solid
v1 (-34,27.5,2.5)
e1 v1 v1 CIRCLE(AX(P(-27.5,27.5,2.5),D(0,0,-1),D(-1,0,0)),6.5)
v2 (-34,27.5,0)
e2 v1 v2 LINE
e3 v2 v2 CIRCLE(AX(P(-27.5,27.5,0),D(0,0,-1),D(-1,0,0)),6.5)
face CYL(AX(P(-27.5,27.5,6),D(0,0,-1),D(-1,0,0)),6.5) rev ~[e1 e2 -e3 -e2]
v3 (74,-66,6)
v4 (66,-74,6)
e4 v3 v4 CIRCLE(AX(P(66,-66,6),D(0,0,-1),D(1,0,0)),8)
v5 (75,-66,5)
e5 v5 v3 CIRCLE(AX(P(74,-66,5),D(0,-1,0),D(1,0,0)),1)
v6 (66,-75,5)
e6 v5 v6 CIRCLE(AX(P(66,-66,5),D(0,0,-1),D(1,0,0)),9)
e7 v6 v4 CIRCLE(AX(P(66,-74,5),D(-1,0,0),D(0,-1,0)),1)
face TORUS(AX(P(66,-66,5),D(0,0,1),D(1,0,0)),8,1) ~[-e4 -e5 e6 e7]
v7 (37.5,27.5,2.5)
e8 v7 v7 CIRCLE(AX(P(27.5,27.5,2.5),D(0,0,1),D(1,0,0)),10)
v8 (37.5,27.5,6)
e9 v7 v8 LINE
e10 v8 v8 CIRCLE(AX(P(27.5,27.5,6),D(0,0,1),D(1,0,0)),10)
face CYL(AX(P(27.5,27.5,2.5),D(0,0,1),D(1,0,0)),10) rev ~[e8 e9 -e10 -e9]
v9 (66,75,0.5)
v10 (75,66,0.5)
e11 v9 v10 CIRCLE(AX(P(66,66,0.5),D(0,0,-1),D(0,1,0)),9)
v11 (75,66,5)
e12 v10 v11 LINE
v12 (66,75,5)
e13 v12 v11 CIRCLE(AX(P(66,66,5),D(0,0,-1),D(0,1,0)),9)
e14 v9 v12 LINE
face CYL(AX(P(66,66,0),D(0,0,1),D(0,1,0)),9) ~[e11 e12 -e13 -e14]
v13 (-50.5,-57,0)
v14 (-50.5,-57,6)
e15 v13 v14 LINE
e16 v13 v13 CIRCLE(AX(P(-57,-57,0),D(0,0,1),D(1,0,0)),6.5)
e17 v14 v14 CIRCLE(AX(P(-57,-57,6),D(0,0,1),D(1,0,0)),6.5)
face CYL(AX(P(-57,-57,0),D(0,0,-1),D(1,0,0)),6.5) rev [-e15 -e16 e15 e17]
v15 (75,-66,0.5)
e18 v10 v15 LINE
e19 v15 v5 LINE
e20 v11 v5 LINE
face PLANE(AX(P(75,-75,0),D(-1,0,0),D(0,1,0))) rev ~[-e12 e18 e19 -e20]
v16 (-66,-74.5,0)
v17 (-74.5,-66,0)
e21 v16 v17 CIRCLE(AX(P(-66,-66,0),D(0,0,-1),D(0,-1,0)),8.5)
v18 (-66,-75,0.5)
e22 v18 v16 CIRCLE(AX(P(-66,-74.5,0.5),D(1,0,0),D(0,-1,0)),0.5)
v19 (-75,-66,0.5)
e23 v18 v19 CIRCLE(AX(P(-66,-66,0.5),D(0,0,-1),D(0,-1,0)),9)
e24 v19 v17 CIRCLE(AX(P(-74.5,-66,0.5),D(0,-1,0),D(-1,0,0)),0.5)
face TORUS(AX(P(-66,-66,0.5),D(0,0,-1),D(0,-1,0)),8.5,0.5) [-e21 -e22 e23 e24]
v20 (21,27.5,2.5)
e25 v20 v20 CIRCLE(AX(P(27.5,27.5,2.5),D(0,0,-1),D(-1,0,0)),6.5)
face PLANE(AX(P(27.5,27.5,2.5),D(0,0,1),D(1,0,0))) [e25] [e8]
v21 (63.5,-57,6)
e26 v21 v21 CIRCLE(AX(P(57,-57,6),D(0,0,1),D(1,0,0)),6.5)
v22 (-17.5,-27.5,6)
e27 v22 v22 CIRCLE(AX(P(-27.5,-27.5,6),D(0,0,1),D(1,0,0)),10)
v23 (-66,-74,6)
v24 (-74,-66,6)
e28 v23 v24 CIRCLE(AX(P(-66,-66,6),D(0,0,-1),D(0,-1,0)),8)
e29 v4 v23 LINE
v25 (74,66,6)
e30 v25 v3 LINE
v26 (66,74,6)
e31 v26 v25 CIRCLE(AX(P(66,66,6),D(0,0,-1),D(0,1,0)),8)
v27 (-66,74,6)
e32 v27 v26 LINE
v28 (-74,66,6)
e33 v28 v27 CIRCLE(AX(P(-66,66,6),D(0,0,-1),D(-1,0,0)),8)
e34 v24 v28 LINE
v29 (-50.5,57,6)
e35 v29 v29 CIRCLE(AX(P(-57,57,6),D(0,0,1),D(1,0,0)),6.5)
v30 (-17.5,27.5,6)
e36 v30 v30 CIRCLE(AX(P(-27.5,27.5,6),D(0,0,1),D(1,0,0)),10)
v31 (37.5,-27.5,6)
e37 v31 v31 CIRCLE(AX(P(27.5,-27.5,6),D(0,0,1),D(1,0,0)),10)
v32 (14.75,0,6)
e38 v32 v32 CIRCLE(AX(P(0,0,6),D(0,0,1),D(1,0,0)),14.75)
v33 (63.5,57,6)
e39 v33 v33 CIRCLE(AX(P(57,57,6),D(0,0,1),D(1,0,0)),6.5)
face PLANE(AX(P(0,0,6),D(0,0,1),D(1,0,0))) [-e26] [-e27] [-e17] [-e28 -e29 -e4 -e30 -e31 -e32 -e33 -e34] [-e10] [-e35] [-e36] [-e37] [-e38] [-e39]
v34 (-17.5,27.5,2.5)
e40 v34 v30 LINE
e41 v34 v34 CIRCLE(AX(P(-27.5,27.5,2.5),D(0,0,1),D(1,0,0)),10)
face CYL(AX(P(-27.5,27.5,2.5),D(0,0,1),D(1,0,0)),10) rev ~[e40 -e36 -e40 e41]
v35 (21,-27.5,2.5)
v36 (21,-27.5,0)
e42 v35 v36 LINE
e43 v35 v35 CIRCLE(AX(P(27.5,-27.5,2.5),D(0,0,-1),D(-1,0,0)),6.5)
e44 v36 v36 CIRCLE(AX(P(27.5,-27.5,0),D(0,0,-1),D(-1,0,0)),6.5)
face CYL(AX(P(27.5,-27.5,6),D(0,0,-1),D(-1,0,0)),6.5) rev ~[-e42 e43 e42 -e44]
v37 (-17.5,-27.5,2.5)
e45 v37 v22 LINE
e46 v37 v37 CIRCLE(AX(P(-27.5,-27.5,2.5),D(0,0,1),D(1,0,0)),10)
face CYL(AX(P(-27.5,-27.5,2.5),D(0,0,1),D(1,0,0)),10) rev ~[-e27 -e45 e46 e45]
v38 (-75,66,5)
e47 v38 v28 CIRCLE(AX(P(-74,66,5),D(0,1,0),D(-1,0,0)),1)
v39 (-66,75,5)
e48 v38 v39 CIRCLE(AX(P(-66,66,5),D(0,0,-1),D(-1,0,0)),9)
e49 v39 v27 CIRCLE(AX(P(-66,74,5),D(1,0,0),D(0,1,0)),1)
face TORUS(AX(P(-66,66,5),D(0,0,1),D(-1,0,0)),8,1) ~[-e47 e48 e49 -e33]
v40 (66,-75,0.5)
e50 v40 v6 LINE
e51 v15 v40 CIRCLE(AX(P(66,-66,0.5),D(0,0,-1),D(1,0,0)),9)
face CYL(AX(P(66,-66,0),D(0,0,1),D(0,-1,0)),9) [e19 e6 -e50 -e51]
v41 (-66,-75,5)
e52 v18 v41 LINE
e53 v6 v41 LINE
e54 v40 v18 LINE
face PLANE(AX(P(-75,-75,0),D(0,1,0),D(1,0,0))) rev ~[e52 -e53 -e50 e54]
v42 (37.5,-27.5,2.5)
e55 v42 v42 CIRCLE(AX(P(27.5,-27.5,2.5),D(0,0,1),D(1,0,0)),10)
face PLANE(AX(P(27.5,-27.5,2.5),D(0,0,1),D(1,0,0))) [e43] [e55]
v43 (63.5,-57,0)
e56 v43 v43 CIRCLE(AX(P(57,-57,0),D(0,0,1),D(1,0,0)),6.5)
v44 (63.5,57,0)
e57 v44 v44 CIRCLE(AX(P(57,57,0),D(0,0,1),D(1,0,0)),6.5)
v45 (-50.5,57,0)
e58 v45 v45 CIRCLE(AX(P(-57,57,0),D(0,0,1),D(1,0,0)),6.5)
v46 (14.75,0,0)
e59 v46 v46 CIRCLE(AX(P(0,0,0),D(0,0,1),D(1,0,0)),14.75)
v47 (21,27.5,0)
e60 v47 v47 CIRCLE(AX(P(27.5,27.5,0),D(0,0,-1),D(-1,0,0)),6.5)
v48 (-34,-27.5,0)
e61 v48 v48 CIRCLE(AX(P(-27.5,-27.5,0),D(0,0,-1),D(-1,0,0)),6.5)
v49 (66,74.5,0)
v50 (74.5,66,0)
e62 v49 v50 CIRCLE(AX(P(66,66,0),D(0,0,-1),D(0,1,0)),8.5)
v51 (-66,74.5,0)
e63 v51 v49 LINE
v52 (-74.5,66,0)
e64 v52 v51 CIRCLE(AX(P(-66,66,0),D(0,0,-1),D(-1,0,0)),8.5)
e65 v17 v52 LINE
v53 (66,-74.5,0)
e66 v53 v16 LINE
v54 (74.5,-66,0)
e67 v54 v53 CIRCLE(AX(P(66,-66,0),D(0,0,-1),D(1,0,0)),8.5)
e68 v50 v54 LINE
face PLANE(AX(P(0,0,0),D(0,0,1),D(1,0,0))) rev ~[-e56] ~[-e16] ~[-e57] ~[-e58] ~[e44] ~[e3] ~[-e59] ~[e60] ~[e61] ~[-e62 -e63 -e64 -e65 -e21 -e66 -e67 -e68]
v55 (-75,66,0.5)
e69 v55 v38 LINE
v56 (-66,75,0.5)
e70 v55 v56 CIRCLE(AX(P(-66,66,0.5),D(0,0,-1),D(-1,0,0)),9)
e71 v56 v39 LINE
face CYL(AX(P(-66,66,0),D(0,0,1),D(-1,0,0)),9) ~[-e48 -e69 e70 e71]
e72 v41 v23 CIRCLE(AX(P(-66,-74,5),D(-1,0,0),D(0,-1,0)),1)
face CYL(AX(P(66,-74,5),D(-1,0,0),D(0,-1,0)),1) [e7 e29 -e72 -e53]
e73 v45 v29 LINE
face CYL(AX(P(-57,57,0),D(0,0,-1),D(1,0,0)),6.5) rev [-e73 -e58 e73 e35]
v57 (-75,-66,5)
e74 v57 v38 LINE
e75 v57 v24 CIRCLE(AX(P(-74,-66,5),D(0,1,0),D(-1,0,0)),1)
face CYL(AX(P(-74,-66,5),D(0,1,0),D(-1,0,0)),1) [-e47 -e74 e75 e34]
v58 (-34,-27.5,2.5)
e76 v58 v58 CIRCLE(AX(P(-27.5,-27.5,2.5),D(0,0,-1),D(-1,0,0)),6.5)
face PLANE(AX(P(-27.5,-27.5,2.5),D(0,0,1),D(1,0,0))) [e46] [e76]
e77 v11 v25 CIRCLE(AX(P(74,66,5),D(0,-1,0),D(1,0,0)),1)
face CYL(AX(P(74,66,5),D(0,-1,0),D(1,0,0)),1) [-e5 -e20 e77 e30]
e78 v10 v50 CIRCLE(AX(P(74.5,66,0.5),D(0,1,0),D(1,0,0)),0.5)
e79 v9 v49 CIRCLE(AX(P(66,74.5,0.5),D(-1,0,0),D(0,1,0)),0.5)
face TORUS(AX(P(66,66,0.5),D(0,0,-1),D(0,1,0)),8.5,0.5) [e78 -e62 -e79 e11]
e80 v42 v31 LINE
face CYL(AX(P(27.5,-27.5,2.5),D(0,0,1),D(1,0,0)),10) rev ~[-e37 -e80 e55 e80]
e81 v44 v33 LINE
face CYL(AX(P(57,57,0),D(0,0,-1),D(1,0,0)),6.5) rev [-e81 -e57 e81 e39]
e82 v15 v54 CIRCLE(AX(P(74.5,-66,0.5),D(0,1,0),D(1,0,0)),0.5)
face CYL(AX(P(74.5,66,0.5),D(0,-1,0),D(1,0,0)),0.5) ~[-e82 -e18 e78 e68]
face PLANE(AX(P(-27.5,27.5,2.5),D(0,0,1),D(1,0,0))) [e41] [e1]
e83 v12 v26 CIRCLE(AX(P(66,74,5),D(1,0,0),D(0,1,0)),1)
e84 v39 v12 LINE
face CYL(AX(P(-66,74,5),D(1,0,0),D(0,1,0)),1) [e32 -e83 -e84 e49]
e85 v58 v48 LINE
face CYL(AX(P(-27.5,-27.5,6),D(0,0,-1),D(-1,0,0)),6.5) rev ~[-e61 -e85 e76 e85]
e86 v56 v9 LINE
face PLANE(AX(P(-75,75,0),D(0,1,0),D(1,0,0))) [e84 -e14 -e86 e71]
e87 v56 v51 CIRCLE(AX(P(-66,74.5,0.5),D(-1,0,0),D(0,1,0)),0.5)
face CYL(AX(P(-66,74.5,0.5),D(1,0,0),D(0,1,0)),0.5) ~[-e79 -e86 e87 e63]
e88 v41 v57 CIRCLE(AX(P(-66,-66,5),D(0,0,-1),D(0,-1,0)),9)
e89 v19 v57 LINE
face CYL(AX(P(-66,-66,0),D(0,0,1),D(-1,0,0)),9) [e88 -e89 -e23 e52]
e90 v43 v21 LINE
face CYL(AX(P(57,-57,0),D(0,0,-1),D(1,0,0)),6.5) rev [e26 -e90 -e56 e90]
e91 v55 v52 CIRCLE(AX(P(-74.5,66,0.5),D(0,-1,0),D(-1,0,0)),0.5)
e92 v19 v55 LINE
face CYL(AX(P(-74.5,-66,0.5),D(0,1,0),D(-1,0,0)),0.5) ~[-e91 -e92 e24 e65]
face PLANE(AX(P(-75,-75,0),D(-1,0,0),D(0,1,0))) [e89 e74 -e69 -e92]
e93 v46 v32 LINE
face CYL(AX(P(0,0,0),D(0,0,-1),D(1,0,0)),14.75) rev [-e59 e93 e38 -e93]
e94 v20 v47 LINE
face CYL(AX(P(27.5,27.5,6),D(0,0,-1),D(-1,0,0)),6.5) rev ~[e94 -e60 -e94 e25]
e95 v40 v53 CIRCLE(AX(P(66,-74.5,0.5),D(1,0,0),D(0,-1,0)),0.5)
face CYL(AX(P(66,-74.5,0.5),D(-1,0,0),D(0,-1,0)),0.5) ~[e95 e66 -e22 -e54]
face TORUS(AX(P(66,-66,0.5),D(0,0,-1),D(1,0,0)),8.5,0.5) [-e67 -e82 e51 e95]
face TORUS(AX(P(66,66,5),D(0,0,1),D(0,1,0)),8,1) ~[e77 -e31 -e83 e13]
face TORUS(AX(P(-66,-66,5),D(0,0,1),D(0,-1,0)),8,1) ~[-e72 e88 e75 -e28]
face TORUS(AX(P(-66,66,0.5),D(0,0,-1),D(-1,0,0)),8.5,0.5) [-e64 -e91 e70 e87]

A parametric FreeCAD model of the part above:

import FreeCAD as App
import Part
import Sketcher
from FreeCAD import Vector


def edges_at(feature, points):
    """Names of the edges that pass closest to the given points."""
    edges = feature.Shape.Edges
    near = lambda p: min(range(len(edges)), key=lambda i: edges[i].distToShape(Part.Vertex(*p))[0])
    return sorted({f"Edge{near(p) + 1}" for p in points})


def add_polygon(sketch, points):
    """Adds a closed chain of lines whose ends are joined by coincident constraints."""
    first, n = sketch.GeometryCount, len(points)
    for a, b in zip(points, points[1:] + points[:1]):
        sketch.addGeometry(Part.LineSegment(App.Vector(*a, 0), App.Vector(*b, 0)), False)
    for i in range(n):
        sketch.addConstraint(Sketcher.Constraint("Coincident", first + i, 2, first + (i + 1) % n, 1))

doc = App.newDocument("Part")
params = doc.addObject("Spreadsheet::Sheet", "Params")
for row, (alias, value) in enumerate([
    ("sketch1_diameter", "13 mm"),
    ("sketch1_diameter2", "29.5 mm"),
    ("sketch1_width", "150 mm"),
    ("pad1_length", "6 mm"),
    ("fillet_radius", "9 mm"),
    ("sketch2_diameter", "13 mm"),
    ("hole_diameter", "13 mm"),
    ("hole_cbore_diameter", "20 mm"),
    ("hole_cbore_depth", "3.5 mm"),
    ("fillet2_radius", "1 mm"),
    ("fillet3_radius", "0.5 mm"),
], start=1):
    params.set(f"A{row}", alias)
    params.set(f"B{row}", "=" + value)
    params.setAlias(f"B{row}", alias)

body = doc.addObject("PartDesign::Body", "Body")

# Sketch on XY plane
sketch1 = body.newObject("Sketcher::SketchObject", "Sketch")
sketch1.AttachmentSupport = (doc.getObject("XY_Plane"), [""])
sketch1.MapMode = "FlatFace"
add_polygon(sketch1, [(-75, 75), (-75, -75), (75, -75), (75, 75)])  # lines 0-3
sketch1.addGeometry(Part.Circle(Vector(-57, -57, 0), Vector(0, 0, 1), 6), False)  # 4
sketch1.addGeometry(Part.Circle(Vector(57, -57, 0), Vector(0, 0, 1), 6), False)  # 5
sketch1.addGeometry(Part.Circle(Vector(-57, 57, 0), Vector(0, 0, 1), 6), False)  # 6
sketch1.addGeometry(Part.Circle(Vector(0, 0, 0), Vector(0, 0, 1), 15), False)  # 7
sketch1.addGeometry(Part.Circle(Vector(57, 57, 0), Vector(0, 0, 1), 6), False)  # 8
sketch1.addConstraint(Sketcher.Constraint("Vertical", 0))
sketch1.addConstraint(Sketcher.Constraint("Horizontal", 1))
sketch1.addConstraint(Sketcher.Constraint("Vertical", 2))
sketch1.addConstraint(Sketcher.Constraint("Horizontal", 3))
sketch1.addConstraint(Sketcher.Constraint("Coincident", 7, 3, -1, 1))
sketch1.addConstraint(Sketcher.Constraint("Equal", 4, 5))
sketch1.addConstraint(Sketcher.Constraint("Equal", 5, 6))
sketch1.addConstraint(Sketcher.Constraint("Equal", 6, 8))
sketch1.addConstraint(Sketcher.Constraint("Symmetric", 5, 3, 6, 3, -1, 1))
sketch1.addConstraint(Sketcher.Constraint("Symmetric", 4, 3, 8, 3, -1, 1))
sketch1.addConstraint(Sketcher.Constraint("Symmetric", 0, 2, 2, 2, -1, 1))
sketch1.addConstraint(Sketcher.Constraint("Symmetric", 4, 3, 5, 3, -2))
sketch1.addConstraint(Sketcher.Constraint("Equal", 3, 0))
sketch1.addConstraint(Sketcher.Constraint("Diameter", 4, 13.0))
sketch1.addConstraint(Sketcher.Constraint("Diameter", 7, 29.5))
sketch1.addConstraint(Sketcher.Constraint("DistanceX", 1, 1, 1, 2, 150.0))
sketch1.addConstraint(Sketcher.Constraint("DistanceX", 4, 3, -1, 1, 57.0))
sketch1.addConstraint(Sketcher.Constraint("DistanceY", 4, 3, -1, 1, 57.0))
sketch1.setExpression("Constraints[17]", "Params.sketch1_diameter")
sketch1.setExpression("Constraints[18]", "Params.sketch1_diameter2")
sketch1.setExpression("Constraints[19]", "Params.sketch1_width")
pad1 = body.newObject("PartDesign::Pad", "Pad")
pad1.Profile = sketch1
pad1.setExpression("Length", "Params.pad1_length")
doc.recompute()

fillet = body.newObject("PartDesign::Fillet", "Fillet")
fillet.Base = (pad1, edges_at(pad1, [
    (-75, -75, 3),
    (-75, 75, 3),
    (75, -75, 3),
    (75, 75, 3),
]))
fillet.setExpression("Radius", "Params.fillet_radius")

# Sketch on XY plane
sketch2 = body.newObject("Sketcher::SketchObject", "Sketch001")
sketch2.AttachmentSupport = (doc.getObject("XY_Plane"), [""])
sketch2.MapMode = "FlatFace"
sketch2.AttachmentOffset = App.Placement(Vector(0, 0, 6), App.Rotation())
sketch2.addGeometry(Part.Circle(Vector(-28, 28, 0), Vector(0, 0, 1), 6), False)
sketch2.addGeometry(Part.Circle(Vector(28, 28, 0), Vector(0, 0, 1), 6), False)
sketch2.addGeometry(Part.Circle(Vector(28, -28, 0), Vector(0, 0, 1), 6), False)
sketch2.addGeometry(Part.Circle(Vector(-28, -28, 0), Vector(0, 0, 1), 6), False)
sketch2.addConstraint(Sketcher.Constraint("Equal", 0, 1))
sketch2.addConstraint(Sketcher.Constraint("Equal", 1, 2))
sketch2.addConstraint(Sketcher.Constraint("Equal", 2, 3))
sketch2.addConstraint(Sketcher.Constraint("Symmetric", 0, 3, 2, 3, -1, 1))
sketch2.addConstraint(Sketcher.Constraint("Symmetric", 1, 3, 3, 3, -1, 1))
sketch2.addConstraint(Sketcher.Constraint("Symmetric", 0, 3, 1, 3, -2))
sketch2.addConstraint(Sketcher.Constraint("Diameter", 0, 13.0))
sketch2.addConstraint(Sketcher.Constraint("DistanceX", 0, 3, 1, 3, 55.0))
sketch2.addConstraint(Sketcher.Constraint("DistanceY", 2, 3, 1, 3, 55.0))
sketch2.setExpression("Constraints[6]", "Params.sketch2_diameter")
doc.recompute()
hole = body.newObject("PartDesign::Hole", "Hole")
hole.Profile = sketch2
hole.ThreadType = "None"
hole.setExpression("Diameter", "Params.hole_diameter")
hole.DepthType = "ThroughAll"
hole.HoleCutType = "Counterbore"
hole.setExpression("HoleCutDiameter", "Params.hole_cbore_diameter")
hole.setExpression("HoleCutDepth", "Params.hole_cbore_depth")
doc.recompute()

fillet2 = body.newObject("PartDesign::Fillet", "Fillet001")
fillet2.Base = (hole, edges_at(hole, [(-72.364, 72.364, 6), (0, 75, 6), (-75, 0, 6)]))
fillet2.setExpression("Radius", "Params.fillet2_radius")
doc.recompute()

fillet3 = body.newObject("PartDesign::Fillet", "Fillet002")
fillet3.Base = (fillet2, edges_at(fillet2, [
    (-75, 66, 2.5),
    (-75, 0, 5),
    (-75, 0, 0),
    (-75, -66, 2.5),
    (-66, -75, 2.5),
    (0, -75, 5),
    (0, -75, 0),
    (66, -75, 2.5),
]))
fillet3.setExpression("Radius", "Params.fillet3_radius")

doc.recompute()
